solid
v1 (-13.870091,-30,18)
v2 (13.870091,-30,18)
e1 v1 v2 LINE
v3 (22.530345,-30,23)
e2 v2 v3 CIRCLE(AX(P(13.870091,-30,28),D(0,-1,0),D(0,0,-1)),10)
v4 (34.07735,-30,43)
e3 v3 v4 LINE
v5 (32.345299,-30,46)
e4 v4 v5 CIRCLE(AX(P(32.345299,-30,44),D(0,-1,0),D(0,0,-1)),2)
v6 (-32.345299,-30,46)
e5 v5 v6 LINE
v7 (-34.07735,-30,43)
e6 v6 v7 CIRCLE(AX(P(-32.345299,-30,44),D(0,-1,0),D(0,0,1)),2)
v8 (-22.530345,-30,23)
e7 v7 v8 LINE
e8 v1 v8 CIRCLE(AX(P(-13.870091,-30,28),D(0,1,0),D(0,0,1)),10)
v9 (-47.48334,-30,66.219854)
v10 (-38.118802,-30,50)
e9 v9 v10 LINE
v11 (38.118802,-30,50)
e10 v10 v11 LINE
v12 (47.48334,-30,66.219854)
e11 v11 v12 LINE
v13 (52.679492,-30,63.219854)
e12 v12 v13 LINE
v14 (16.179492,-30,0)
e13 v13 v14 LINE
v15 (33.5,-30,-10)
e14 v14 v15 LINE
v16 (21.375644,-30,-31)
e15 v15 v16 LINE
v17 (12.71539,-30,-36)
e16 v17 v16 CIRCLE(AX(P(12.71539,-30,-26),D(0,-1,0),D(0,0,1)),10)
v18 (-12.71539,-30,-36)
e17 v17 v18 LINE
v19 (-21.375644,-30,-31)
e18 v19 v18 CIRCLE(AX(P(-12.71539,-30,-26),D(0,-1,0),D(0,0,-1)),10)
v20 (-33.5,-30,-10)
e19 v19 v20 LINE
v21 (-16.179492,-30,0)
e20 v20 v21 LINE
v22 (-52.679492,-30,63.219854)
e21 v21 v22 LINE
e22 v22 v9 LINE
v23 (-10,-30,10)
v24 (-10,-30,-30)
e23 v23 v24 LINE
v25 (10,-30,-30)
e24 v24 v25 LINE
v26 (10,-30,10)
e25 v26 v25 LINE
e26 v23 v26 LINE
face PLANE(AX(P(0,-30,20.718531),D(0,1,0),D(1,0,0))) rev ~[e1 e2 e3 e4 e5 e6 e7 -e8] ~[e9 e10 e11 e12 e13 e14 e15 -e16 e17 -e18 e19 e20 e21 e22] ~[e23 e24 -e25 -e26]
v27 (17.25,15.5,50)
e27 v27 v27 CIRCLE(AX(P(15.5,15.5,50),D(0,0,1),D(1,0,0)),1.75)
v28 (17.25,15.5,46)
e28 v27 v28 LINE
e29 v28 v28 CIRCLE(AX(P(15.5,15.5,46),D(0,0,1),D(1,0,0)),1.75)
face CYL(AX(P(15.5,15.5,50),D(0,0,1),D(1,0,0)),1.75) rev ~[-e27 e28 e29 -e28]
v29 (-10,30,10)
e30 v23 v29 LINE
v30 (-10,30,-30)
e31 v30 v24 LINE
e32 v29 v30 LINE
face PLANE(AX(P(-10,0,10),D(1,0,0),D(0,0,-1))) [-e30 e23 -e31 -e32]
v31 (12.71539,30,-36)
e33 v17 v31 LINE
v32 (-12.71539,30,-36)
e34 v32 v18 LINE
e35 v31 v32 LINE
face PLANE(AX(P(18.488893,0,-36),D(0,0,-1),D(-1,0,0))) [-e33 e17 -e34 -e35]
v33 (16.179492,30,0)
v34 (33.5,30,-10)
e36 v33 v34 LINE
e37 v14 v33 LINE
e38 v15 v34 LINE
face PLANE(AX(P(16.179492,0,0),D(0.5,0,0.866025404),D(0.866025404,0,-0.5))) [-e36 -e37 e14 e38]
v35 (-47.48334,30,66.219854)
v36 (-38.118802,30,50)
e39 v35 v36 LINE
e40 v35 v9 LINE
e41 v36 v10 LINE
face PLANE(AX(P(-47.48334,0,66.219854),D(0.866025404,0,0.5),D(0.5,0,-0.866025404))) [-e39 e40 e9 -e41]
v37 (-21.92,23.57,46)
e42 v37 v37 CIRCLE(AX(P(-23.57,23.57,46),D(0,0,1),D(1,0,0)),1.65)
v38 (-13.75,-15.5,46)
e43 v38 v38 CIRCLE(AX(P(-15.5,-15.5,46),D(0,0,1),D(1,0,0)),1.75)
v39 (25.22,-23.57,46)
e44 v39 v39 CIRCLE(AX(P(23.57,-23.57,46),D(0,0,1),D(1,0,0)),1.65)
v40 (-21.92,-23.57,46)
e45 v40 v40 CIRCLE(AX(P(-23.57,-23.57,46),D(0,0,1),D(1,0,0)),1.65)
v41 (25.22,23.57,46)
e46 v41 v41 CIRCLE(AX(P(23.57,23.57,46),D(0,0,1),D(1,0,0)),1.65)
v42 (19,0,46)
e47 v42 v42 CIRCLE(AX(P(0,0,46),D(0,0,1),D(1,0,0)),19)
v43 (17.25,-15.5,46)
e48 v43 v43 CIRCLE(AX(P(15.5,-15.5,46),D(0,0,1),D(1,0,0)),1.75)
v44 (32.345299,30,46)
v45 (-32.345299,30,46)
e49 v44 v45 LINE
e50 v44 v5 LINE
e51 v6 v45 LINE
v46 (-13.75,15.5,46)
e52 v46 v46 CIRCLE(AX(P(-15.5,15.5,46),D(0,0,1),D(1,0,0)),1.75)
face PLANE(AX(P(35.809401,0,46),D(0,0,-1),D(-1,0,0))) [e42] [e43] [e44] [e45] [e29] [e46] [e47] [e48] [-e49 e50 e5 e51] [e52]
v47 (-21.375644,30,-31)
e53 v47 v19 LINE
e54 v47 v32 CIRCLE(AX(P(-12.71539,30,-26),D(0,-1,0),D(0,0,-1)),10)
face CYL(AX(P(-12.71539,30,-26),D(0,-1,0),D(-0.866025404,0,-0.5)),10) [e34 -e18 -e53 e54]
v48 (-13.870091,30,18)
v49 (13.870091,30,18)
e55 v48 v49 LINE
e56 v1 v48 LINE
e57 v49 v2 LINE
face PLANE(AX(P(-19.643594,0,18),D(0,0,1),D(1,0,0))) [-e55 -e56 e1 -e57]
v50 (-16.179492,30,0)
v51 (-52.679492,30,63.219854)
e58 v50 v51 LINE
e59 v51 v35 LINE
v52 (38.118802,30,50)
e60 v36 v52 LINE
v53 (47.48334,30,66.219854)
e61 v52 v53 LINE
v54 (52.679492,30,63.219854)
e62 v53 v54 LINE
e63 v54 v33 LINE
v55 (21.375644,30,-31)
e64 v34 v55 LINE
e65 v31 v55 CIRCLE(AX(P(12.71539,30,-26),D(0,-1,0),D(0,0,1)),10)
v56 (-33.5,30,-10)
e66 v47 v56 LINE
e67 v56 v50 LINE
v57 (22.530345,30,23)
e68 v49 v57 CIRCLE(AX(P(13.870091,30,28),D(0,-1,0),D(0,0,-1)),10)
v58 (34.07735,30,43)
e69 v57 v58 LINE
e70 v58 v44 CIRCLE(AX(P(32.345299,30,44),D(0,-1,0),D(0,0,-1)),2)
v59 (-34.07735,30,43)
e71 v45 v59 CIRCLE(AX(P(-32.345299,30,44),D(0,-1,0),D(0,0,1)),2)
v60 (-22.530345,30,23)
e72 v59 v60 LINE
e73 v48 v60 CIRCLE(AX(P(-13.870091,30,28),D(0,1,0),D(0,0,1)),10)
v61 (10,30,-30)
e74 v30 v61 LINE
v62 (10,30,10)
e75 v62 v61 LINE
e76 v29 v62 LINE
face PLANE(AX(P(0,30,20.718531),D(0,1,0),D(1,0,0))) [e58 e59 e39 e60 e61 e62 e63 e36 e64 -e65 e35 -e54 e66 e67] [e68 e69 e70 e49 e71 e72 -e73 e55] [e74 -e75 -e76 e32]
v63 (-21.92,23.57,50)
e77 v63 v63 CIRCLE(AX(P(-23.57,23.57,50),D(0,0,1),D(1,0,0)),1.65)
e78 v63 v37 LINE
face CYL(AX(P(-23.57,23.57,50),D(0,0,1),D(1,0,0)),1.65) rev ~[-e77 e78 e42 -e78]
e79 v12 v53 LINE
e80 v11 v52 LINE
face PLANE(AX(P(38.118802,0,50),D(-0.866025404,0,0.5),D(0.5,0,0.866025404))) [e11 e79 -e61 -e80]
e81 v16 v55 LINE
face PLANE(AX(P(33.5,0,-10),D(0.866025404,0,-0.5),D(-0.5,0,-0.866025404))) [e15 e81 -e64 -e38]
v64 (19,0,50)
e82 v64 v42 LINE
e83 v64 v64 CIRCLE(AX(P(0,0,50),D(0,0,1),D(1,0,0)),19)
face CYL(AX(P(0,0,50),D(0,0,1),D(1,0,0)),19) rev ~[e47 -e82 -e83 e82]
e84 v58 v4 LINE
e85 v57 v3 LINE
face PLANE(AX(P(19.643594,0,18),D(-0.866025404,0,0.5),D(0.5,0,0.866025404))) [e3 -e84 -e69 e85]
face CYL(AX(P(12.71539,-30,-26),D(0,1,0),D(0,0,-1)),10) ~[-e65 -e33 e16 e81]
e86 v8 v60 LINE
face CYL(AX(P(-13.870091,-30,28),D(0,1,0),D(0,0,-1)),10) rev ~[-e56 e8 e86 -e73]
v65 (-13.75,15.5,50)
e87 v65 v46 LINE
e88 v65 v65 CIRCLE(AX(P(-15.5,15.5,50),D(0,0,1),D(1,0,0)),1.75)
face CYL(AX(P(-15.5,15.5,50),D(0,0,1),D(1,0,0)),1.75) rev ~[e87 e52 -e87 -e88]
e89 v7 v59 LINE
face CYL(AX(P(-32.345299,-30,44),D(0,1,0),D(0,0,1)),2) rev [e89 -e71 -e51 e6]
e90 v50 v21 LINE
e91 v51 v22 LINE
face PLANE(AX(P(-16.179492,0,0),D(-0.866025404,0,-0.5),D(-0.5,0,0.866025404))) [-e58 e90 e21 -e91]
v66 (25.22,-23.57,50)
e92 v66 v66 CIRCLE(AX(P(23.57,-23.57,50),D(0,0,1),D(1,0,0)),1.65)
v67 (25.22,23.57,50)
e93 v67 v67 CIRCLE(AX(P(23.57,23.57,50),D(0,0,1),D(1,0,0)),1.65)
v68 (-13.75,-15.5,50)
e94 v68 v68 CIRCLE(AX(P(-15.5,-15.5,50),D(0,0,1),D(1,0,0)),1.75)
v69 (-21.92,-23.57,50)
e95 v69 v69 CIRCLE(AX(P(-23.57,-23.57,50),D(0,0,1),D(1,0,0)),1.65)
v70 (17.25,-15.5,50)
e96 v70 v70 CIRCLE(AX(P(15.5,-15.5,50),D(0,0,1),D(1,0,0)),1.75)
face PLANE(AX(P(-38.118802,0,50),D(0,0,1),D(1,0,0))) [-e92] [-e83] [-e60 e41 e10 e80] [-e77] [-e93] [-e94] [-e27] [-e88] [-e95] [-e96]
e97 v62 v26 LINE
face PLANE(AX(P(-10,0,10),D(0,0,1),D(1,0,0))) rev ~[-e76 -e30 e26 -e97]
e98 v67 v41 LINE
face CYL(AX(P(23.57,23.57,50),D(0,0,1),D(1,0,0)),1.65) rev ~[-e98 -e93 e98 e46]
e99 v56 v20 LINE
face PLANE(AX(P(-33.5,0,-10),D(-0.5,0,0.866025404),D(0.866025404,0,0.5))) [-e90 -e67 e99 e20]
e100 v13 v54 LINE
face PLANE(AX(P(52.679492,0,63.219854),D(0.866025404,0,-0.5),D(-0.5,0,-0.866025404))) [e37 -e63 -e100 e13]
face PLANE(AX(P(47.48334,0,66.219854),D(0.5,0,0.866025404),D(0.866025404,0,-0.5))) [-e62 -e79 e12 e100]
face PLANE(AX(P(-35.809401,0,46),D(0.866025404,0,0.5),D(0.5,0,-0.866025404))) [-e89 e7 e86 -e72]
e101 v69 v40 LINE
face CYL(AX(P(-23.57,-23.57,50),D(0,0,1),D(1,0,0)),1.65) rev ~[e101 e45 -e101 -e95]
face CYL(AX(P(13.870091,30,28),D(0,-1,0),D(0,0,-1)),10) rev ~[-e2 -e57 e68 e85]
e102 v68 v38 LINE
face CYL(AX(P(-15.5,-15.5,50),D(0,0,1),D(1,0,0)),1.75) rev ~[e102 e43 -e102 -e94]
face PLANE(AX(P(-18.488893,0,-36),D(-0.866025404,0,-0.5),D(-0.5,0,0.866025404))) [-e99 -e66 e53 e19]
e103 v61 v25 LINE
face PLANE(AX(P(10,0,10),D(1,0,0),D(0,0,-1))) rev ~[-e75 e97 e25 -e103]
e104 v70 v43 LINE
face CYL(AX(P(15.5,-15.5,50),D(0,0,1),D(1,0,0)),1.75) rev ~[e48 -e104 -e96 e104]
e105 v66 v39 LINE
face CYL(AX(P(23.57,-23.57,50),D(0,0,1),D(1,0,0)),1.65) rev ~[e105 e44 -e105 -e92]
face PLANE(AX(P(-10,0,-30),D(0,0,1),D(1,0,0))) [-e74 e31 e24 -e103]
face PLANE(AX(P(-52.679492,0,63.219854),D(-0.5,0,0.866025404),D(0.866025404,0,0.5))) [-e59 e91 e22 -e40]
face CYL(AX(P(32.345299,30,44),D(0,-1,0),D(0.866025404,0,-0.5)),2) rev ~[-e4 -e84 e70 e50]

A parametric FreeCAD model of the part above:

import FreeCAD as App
import Part
import Sketcher
Q = App.Units.Quantity


def edges_at(feature, points):
    """Names of the edges that pass closest to the given points."""
    edges = feature.Shape.Edges
    near = lambda p: min(range(len(edges)), key=lambda i: edges[i].distToShape(Part.Vertex(*p))[0])
    return sorted({f"Edge{near(p) + 1}" for p in points})


def add_polygon(sketch, points):
    """Adds a closed chain of lines whose ends are joined by coincident constraints."""
    first, n = sketch.GeometryCount, len(points)
    for a, b in zip(points, points[1:] + points[:1]):
        sketch.addGeometry(Part.LineSegment(App.Vector(*a, 0), App.Vector(*b, 0)), False)
    for i in range(n):
        sketch.addConstraint(Sketcher.Constraint("Coincident", first + i, 2, first + (i + 1) % n, 1))

doc = App.newDocument("Part")
body = doc.addObject("PartDesign::Body", "Body")

sketch1 = doc.addObject("Sketcher::SketchObject", "Sketch")
body.addObject(sketch1)
sketch1.AttachmentSupport = (doc.XZ_Plane, [""])
sketch1.MapMode = "FlatFace"
add_polygon(sketch1, [(-38, 50), (38, 50), (47, 66), (53, 63), (16, 0), (34, -10), (18, -36), (-18, -36), (-34, -10), (-16, 0), (-53, 63), (-47, 66)])
add_polygon(sketch1, [(36, 46), (-36, 46), (-20, 18), (20, 18)])
add_polygon(sketch1, [(10, 10), (-10, 10), (-10, -30), (10, -30)])
sketch1.addConstraint([
    Sketcher.Constraint("Horizontal", 0),
    Sketcher.Constraint("Horizontal", 6),
    Sketcher.Constraint("Horizontal", 12),
    Sketcher.Constraint("Horizontal", 14),
    Sketcher.Constraint("Horizontal", 16),
    Sketcher.Constraint("Vertical", 17),
    Sketcher.Constraint("Horizontal", 18),
    Sketcher.Constraint("Vertical", 19),
    Sketcher.Constraint("Symmetric", 3, 2, 8, 2, -1, 1),
    Sketcher.Constraint("Symmetric", 4, 2, 7, 2, -2),
    Sketcher.Constraint("Symmetric", 2, 2, 9, 2, -2),
    Sketcher.Constraint("Symmetric", 1, 2, 10, 2, -2),
    Sketcher.Constraint("PointOnObject", 3, 2, -1),
    Sketcher.Constraint("Perpendicular", 1, 2),
    Sketcher.Constraint("Perpendicular", 2, 3),
    Sketcher.Constraint("Perpendicular", 3, 4),
    Sketcher.Constraint("Perpendicular", 4, 5),
    Sketcher.Constraint("Perpendicular", 7, 8),
    Sketcher.Constraint("Perpendicular", 10, 11),
    Sketcher.Constraint("Parallel", 11, 13),
    Sketcher.Constraint("Parallel", 5, 15),
    Sketcher.Constraint("DistanceX", 16, 2, 16, 1, 20.0),
    Sketcher.Constraint("DistanceY", 17, 2, 17, 1, 40.0),
    Sketcher.Constraint("Angle", 1, Q("60 deg")),
    Sketcher.Constraint("Distance", 2, 6.0),
    Sketcher.Constraint("Distance", 3, 73.0),
    Sketcher.Constraint("Distance", 4, 20.0),
    Sketcher.Constraint("DistanceY", -1, 1, 0, 2, 50.0),
    Sketcher.Constraint("DistanceY", 5, 2, -1, 1, 36.0),
    Sketcher.Constraint("DistanceY", -1, 1, 12, 2, 46.0),
    Sketcher.Constraint("DistanceY", -1, 1, 13, 2, 18.0),
    Sketcher.Constraint("DistanceX", 16, 2, -1, 1, 10.0),
    Sketcher.Constraint("DistanceY", -1, 1, 16, 2, 10.0),
    Sketcher.Constraint("DistanceX", 7, 2, 4, 2, 67.0),
    Sketcher.Constraint("DistanceX", 12, 2, -1, 1, 35.809401),
    Sketcher.Constraint("DistanceX", -1, 1, 15, 2, 35.809401),
])
pad1 = doc.addObject("PartDesign::Pad", "Pad")
body.addObject(pad1)
pad1.Profile = sketch1
pad1.Length = 60
pad1.Midplane = True
doc.recompute()

fillet = doc.addObject("PartDesign::Fillet", "Fillet")
body.addObject(fillet)
fillet.Base = (pad1, edges_at(pad1, [
    (-18.489, 0, -36),
    (18.489, 0, -36),
    (19.644, 0, 18),
    (-19.644, 0, 18),
]))
fillet.Radius = 10
doc.recompute()

fillet2 = doc.addObject("PartDesign::Fillet", "Fillet001")
body.addObject(fillet2)
fillet2.Base = (fillet, edges_at(fillet, [(35.809, 0, 46), (-35.809, 0, 46)]))
fillet2.Radius = 2

sketch2 = doc.addObject("Sketcher::SketchObject", "Sketch001")
body.addObject(sketch2)
sketch2.AttachmentSupport = (doc.XY_Plane, [""])
sketch2.MapMode = "FlatFace"
sketch2.AttachmentOffset = App.Placement(App.Vector(0, 0, 50), App.Rotation())
sketch2.addGeometry(Part.Circle(App.Vector(0, 0, 0), App.Vector(0, 0, 1), 19), False)
sketch2.addConstraint([
    Sketcher.Constraint("Coincident", 0, 3, -1, 1),
    Sketcher.Constraint("Diameter", 0, 38.0),
])
pocket1 = doc.addObject("PartDesign::Pocket", "Pocket")
body.addObject(pocket1)
pocket1.Profile = sketch2
pocket1.Type = "UpToFirst"

sketch3 = doc.addObject("Sketcher::SketchObject", "Sketch002")
body.addObject(sketch3)
sketch3.AttachmentSupport = (doc.XY_Plane, [""])
sketch3.MapMode = "FlatFace"
sketch3.AttachmentOffset = App.Placement(App.Vector(0, 0, 50), App.Rotation())
sketch3.addGeometry(Part.Circle(App.Vector(-15.5, 15.5, 0), App.Vector(0, 0, 1), 1.8), False)
sketch3.addConstraint([
    Sketcher.Constraint("Diameter", 0, 3.5),
    Sketcher.Constraint("DistanceX", 0, 3, -1, 1, 15.5),
    Sketcher.Constraint("DistanceY", -1, 1, 0, 3, 15.5),
])
pocket2 = doc.addObject("PartDesign::Pocket", "Pocket001")
body.addObject(pocket2)
pocket2.Profile = sketch3
pocket2.Type = "UpToFirst"

sketch4 = doc.addObject("Sketcher::SketchObject", "Sketch003")
body.addObject(sketch4)
sketch4.AttachmentSupport = (doc.XY_Plane, [""])
sketch4.MapMode = "FlatFace"
sketch4.AttachmentOffset = App.Placement(App.Vector(0, 0, 50), App.Rotation())
sketch4.addGeometry(Part.Circle(App.Vector(15.5, 15.5, 0), App.Vector(0, 0, 1), 1.8), False)
sketch4.addConstraint([
    Sketcher.Constraint("Diameter", 0, 3.5),
    Sketcher.Constraint("DistanceX", -1, 1, 0, 3, 15.5),
    Sketcher.Constraint("DistanceY", -1, 1, 0, 3, 15.5),
])
pocket3 = doc.addObject("PartDesign::Pocket", "Pocket002")
body.addObject(pocket3)
pocket3.Profile = sketch4
pocket3.Type = "UpToFirst"

sketch5 = doc.addObject("Sketcher::SketchObject", "Sketch004")
body.addObject(sketch5)
sketch5.AttachmentSupport = (doc.XY_Plane, [""])
sketch5.MapMode = "FlatFace"
sketch5.AttachmentOffset = App.Placement(App.Vector(0, 0, 50), App.Rotation())
sketch5.addGeometry(Part.Circle(App.Vector(15.5, -15.5, 0), App.Vector(0, 0, 1), 1.8), False)
sketch5.addConstraint([
    Sketcher.Constraint("Diameter", 0, 3.5),
    Sketcher.Constraint("DistanceX", -1, 1, 0, 3, 15.5),
    Sketcher.Constraint("DistanceY", 0, 3, -1, 1, 15.5),
])
pocket4 = doc.addObject("PartDesign::Pocket", "Pocket003")
body.addObject(pocket4)
pocket4.Profile = sketch5
pocket4.Type = "UpToFirst"

sketch6 = doc.addObject("Sketcher::SketchObject", "Sketch005")
body.addObject(sketch6)
sketch6.AttachmentSupport = (doc.XY_Plane, [""])
sketch6.MapMode = "FlatFace"
sketch6.AttachmentOffset = App.Placement(App.Vector(0, 0, 50), App.Rotation())
sketch6.addGeometry(Part.Circle(App.Vector(-15.5, -15.5, 0), App.Vector(0, 0, 1), 1.8), False)
sketch6.addConstraint([
    Sketcher.Constraint("Diameter", 0, 3.5),
    Sketcher.Constraint("DistanceX", 0, 3, -1, 1, 15.5),
    Sketcher.Constraint("DistanceY", 0, 3, -1, 1, 15.5),
])
pocket5 = doc.addObject("PartDesign::Pocket", "Pocket004")
body.addObject(pocket5)
pocket5.Profile = sketch6
pocket5.Type = "UpToFirst"

sketch7 = doc.addObject("Sketcher::SketchObject", "Sketch006")
body.addObject(sketch7)
sketch7.AttachmentSupport = (doc.XY_Plane, [""])
sketch7.MapMode = "FlatFace"
sketch7.AttachmentOffset = App.Placement(App.Vector(0, 0, 50), App.Rotation())
sketch7.addGeometry(Part.Circle(App.Vector(-23.6, 23.6, 0), App.Vector(0, 0, 1), 1.6), False)
sketch7.addConstraint([
    Sketcher.Constraint("Diameter", 0, 3.3),
    Sketcher.Constraint("DistanceX", 0, 3, -1, 1, 23.57),
    Sketcher.Constraint("DistanceY", -1, 1, 0, 3, 23.57),
])
pocket6 = doc.addObject("PartDesign::Pocket", "Pocket005")
body.addObject(pocket6)
pocket6.Profile = sketch7
pocket6.Type = "UpToFirst"

sketch8 = doc.addObject("Sketcher::SketchObject", "Sketch007")
body.addObject(sketch8)
sketch8.AttachmentSupport = (doc.XY_Plane, [""])
sketch8.MapMode = "FlatFace"
sketch8.AttachmentOffset = App.Placement(App.Vector(0, 0, 50), App.Rotation())
sketch8.addGeometry(Part.Circle(App.Vector(23.6, 23.6, 0), App.Vector(0, 0, 1), 1.6), False)
sketch8.addConstraint([
    Sketcher.Constraint("Diameter", 0, 3.3),
    Sketcher.Constraint("DistanceX", -1, 1, 0, 3, 23.57),
    Sketcher.Constraint("DistanceY", -1, 1, 0, 3, 23.57),
])
pocket7 = doc.addObject("PartDesign::Pocket", "Pocket006")
body.addObject(pocket7)
pocket7.Profile = sketch8
pocket7.Type = "UpToFirst"

sketch9 = doc.addObject("Sketcher::SketchObject", "Sketch008")
body.addObject(sketch9)
sketch9.AttachmentSupport = (doc.XY_Plane, [""])
sketch9.MapMode = "FlatFace"
sketch9.AttachmentOffset = App.Placement(App.Vector(0, 0, 50), App.Rotation())
sketch9.addGeometry(Part.Circle(App.Vector(23.6, -23.6, 0), App.Vector(0, 0, 1), 1.6), False)
sketch9.addConstraint([
    Sketcher.Constraint("Diameter", 0, 3.3),
    Sketcher.Constraint("DistanceX", -1, 1, 0, 3, 23.57),
    Sketcher.Constraint("DistanceY", 0, 3, -1, 1, 23.57),
])
pocket8 = doc.addObject("PartDesign::Pocket", "Pocket007")
body.addObject(pocket8)
pocket8.Profile = sketch9
pocket8.Type = "UpToFirst"

sketch10 = doc.addObject("Sketcher::SketchObject", "Sketch009")
body.addObject(sketch10)
sketch10.AttachmentSupport = (doc.XY_Plane, [""])
sketch10.MapMode = "FlatFace"
sketch10.AttachmentOffset = App.Placement(App.Vector(0, 0, 50), App.Rotation())
sketch10.addGeometry(Part.Circle(App.Vector(-23.6, -23.6, 0), App.Vector(0, 0, 1), 1.6), False)
sketch10.addConstraint([
    Sketcher.Constraint("Diameter", 0, 3.3),
    Sketcher.Constraint("DistanceX", 0, 3, -1, 1, 23.57),
    Sketcher.Constraint("DistanceY", 0, 3, -1, 1, 23.57),
])
pocket9 = doc.addObject("PartDesign::Pocket", "Pocket008")
body.addObject(pocket9)
pocket9.Profile = sketch10
pocket9.Type = "UpToFirst"

doc.recompute()
